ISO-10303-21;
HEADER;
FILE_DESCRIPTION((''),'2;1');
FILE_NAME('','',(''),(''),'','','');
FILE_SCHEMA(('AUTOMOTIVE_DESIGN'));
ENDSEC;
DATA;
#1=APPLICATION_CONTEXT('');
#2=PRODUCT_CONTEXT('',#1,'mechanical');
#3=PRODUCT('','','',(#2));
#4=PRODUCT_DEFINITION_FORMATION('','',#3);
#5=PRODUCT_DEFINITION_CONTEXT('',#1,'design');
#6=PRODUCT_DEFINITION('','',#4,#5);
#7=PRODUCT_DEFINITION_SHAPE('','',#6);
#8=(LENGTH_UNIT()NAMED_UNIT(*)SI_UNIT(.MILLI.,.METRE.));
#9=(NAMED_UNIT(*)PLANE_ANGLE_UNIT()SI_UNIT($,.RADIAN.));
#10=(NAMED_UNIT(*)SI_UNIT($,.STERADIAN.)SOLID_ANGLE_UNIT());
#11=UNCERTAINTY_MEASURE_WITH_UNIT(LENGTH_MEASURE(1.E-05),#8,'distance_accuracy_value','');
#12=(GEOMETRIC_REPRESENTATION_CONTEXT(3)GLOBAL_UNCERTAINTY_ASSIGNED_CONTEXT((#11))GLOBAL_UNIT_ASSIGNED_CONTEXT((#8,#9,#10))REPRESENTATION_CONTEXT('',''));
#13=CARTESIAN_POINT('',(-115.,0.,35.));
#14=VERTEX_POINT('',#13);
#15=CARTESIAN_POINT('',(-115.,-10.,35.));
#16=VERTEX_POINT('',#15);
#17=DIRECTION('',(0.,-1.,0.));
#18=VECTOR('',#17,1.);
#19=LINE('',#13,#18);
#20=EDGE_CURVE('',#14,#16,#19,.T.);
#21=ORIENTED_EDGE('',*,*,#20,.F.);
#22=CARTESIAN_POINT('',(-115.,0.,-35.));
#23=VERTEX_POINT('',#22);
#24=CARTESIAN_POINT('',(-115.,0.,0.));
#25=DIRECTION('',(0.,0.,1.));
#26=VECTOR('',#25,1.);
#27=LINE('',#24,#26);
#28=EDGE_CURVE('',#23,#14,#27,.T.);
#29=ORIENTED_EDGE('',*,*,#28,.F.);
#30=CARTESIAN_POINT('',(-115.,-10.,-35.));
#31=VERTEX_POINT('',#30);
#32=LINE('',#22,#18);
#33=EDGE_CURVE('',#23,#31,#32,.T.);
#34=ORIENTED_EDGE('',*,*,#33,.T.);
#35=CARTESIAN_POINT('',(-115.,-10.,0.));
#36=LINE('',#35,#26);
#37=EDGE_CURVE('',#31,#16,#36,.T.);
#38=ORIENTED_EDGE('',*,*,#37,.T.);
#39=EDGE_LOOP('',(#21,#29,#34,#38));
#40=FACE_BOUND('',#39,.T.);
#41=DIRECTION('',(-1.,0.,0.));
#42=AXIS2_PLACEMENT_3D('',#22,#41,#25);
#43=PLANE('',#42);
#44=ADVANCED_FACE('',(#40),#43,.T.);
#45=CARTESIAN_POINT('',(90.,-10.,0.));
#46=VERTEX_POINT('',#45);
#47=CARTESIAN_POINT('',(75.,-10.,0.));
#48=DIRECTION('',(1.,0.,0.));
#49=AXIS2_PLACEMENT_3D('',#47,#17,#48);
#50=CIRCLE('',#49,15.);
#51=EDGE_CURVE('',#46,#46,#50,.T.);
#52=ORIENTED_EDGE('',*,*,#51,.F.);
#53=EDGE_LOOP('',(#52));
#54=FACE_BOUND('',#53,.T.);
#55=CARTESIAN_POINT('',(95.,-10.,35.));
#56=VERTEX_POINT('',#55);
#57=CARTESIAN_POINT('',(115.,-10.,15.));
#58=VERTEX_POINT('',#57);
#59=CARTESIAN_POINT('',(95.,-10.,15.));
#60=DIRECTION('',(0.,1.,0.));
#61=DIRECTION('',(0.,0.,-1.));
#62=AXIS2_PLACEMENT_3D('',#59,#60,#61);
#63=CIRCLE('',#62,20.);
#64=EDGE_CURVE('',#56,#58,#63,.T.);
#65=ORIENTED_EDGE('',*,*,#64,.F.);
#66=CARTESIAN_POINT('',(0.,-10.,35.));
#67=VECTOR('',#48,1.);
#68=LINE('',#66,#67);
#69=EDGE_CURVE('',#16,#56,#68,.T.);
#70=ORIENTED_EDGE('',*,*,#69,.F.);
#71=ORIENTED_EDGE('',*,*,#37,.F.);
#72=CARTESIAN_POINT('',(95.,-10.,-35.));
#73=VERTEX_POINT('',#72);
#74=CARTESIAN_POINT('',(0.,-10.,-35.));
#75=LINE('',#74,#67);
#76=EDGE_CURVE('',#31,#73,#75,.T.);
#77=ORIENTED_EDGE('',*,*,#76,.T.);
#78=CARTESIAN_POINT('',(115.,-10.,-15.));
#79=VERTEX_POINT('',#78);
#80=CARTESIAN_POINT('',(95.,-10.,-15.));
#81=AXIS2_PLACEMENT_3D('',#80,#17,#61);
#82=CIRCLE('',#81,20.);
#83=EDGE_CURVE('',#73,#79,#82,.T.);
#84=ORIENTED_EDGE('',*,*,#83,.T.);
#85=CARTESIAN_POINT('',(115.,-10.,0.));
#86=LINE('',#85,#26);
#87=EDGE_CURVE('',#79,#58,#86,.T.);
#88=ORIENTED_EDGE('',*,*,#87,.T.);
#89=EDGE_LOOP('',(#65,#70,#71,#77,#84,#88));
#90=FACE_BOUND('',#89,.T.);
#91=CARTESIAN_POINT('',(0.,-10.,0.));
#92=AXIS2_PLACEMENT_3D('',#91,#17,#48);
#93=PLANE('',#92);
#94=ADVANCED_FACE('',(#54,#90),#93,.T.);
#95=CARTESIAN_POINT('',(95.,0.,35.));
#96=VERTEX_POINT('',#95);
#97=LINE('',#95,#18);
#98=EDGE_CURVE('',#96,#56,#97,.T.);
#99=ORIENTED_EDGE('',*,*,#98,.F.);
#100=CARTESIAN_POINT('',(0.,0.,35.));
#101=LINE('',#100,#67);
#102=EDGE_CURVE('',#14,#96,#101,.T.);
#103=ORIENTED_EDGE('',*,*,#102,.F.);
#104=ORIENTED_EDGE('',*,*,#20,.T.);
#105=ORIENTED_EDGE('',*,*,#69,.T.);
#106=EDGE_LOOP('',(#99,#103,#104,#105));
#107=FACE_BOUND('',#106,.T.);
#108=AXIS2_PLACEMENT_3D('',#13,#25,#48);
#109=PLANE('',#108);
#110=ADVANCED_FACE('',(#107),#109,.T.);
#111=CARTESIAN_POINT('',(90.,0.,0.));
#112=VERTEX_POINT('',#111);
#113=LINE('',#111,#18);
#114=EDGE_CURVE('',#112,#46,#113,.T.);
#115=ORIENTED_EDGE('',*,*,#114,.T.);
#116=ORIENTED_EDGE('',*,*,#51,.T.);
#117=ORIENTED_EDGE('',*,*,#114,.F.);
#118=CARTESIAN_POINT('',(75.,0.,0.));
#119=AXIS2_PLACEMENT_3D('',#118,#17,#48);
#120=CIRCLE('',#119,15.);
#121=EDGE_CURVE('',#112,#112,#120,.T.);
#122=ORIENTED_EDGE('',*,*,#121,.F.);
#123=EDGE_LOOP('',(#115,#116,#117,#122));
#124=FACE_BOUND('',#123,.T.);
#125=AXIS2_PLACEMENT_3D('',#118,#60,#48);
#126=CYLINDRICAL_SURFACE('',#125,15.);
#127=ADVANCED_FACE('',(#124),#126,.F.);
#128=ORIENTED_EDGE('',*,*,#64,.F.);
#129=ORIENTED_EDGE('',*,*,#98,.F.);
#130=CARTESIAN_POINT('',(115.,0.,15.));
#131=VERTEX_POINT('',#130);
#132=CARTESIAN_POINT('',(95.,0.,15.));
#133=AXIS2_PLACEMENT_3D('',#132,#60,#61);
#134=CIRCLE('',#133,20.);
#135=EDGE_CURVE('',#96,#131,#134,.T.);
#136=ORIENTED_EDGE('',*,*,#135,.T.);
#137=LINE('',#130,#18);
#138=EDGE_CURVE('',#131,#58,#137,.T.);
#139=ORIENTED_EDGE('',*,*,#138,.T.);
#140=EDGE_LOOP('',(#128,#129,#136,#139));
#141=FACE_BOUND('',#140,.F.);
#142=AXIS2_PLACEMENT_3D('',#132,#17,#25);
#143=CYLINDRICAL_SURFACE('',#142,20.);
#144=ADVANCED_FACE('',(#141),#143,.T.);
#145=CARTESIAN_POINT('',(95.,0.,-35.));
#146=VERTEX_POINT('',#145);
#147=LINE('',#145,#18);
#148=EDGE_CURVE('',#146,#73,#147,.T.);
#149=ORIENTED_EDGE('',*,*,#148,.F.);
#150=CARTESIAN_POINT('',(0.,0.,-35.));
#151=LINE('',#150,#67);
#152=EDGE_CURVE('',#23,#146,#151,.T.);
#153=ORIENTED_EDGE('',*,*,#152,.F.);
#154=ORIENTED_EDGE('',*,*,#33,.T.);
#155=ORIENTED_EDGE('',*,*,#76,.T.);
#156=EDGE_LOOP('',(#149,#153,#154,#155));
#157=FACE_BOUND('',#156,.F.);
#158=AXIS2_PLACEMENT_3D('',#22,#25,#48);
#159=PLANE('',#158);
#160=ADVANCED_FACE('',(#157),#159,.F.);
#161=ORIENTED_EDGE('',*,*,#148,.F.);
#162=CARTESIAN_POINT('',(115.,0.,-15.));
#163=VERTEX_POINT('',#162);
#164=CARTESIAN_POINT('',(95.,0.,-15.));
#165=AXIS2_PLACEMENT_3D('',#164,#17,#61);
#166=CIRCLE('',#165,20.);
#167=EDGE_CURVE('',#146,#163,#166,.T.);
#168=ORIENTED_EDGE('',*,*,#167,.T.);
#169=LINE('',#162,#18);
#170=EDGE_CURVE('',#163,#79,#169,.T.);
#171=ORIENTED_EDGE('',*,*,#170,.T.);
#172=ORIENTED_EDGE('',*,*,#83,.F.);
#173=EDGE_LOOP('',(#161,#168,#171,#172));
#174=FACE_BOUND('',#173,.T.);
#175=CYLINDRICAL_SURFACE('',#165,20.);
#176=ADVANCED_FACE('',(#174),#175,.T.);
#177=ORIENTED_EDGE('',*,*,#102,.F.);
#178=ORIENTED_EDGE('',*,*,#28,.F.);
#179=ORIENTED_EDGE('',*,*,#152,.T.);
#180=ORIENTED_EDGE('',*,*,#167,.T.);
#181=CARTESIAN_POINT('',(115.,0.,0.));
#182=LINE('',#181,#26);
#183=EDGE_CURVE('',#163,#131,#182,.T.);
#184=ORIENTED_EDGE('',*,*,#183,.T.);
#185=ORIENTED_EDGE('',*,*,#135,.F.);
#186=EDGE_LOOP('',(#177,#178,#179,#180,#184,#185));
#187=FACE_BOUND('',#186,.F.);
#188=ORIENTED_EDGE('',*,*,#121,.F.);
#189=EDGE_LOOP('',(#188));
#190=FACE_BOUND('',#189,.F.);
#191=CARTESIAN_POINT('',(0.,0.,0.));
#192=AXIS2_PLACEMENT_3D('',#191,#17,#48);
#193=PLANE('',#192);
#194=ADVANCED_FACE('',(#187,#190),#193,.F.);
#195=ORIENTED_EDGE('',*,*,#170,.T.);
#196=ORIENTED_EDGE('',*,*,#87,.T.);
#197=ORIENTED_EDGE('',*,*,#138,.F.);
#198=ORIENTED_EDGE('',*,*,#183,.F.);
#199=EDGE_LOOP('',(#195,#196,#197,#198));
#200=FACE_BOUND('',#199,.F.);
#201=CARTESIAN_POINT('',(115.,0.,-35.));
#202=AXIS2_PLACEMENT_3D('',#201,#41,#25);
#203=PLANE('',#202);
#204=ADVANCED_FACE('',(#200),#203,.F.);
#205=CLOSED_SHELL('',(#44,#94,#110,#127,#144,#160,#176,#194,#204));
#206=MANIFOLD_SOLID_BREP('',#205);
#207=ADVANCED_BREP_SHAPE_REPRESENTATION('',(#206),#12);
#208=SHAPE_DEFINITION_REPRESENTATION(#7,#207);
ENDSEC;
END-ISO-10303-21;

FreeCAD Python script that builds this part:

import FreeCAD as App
import Part
import Sketcher

V = App.Vector


def edges_at(feature, points):
    """Names of the edges that pass closest to the given points."""
    edges = feature.Shape.Edges
    near = lambda p: min(range(len(edges)), key=lambda i: edges[i].distToShape(Part.Vertex(*p))[0])
    return sorted({f"Edge{near(p) + 1}" for p in points})

doc = App.newDocument("Part")
body = doc.addObject("PartDesign::Body", "Body")

# Sketch on XZ plane
sketch1 = doc.addObject("Sketcher::SketchObject", "Sketch")
body.addObject(sketch1)
sketch1.AttachmentSupport = (doc.XZ_Plane, [""])
sketch1.MapMode = "FlatFace"
sketch1.addGeometry([
    Part.LineSegment(V(-115, 35, 0), V(-115, -35, 0)),  # 0
    Part.LineSegment(V(-115, -35, 0), V(115, -35, 0)),  # 1
    Part.LineSegment(V(115, -35, 0), V(115, 35, 0)),  # 2
    Part.LineSegment(V(115, 35, 0), V(-115, 35, 0)),  # 3
    Part.Circle(V(75, 0, 0), V(0, 0, 1), 15),  # 4
], False)
sketch1.addConstraint([
    Sketcher.Constraint("Coincident", 0, 2, 1, 1),
    Sketcher.Constraint("Coincident", 1, 2, 2, 1),
    Sketcher.Constraint("Coincident", 2, 2, 3, 1),
    Sketcher.Constraint("Coincident", 3, 2, 0, 1),
    Sketcher.Constraint("Vertical", 0),
    Sketcher.Constraint("Horizontal", 1),
    Sketcher.Constraint("Vertical", 2),
    Sketcher.Constraint("Horizontal", 3),
    Sketcher.Constraint("Symmetric", 0, 2, 2, 2, -1, 1),
    Sketcher.Constraint("PointOnObject", 4, 3, -1),
    Sketcher.Constraint("Diameter", 4, 30.0),
    Sketcher.Constraint("DistanceX", 1, 1, 1, 2, 230.0),
    Sketcher.Constraint("DistanceY", 0, 2, 0, 1, 70.0),
    Sketcher.Constraint("DistanceX", -1, 1, 4, 3, 75.0),
])
pad1 = doc.addObject("PartDesign::Pad", "Pad")
body.addObject(pad1)
pad1.Profile = sketch1
pad1.Length = 10
doc.recompute()

fillet = doc.addObject("PartDesign::Fillet", "Fillet")
body.addObject(fillet)
fillet.Base = (pad1, edges_at(pad1, [(115, -5, 35), (115, -5, -35)]))
fillet.Radius = 20

doc.recompute()
